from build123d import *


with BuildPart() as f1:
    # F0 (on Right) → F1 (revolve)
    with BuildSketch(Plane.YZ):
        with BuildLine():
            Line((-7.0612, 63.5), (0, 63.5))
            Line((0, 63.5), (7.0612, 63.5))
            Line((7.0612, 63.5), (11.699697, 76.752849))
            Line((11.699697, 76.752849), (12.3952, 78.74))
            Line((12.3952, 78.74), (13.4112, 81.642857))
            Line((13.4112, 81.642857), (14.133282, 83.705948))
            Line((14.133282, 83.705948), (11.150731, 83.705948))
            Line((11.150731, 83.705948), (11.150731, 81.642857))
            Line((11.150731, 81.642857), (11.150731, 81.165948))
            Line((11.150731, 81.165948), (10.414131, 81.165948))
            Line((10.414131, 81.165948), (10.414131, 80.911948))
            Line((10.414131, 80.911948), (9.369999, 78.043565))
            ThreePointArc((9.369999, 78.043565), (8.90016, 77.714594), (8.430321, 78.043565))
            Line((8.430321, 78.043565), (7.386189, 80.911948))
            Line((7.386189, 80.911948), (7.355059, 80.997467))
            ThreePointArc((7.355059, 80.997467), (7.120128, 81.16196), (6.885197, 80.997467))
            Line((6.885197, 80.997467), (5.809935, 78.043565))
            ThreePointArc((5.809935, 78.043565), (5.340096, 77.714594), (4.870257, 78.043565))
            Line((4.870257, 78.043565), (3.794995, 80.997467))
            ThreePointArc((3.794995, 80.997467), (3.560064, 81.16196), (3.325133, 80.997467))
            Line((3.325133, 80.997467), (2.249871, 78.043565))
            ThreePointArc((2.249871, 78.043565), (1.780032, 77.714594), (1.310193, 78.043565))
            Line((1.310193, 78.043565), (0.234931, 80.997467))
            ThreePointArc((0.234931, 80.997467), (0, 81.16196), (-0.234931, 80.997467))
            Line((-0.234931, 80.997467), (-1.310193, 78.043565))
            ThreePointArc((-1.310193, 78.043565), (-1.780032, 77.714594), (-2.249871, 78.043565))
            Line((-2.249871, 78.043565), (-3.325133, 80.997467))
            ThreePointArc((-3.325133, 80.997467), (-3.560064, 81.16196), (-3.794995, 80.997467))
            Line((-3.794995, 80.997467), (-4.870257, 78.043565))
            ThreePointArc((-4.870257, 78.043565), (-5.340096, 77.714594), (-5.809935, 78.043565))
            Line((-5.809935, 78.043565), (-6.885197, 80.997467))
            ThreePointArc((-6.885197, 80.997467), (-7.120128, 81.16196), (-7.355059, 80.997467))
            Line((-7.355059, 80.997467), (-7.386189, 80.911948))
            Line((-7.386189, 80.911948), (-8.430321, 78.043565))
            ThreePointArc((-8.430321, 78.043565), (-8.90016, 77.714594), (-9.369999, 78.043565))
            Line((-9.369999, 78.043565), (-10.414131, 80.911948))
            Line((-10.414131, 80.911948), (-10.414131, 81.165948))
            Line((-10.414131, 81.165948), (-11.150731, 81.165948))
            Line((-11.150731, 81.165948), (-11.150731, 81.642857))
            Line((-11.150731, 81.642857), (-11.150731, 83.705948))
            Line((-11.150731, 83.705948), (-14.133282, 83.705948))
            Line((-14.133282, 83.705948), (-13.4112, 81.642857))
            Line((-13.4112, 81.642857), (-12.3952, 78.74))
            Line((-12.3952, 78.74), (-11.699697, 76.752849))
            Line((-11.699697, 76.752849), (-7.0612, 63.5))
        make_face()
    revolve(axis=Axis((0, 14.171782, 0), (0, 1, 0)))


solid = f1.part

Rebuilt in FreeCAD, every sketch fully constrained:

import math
import FreeCAD as App
import Part
import Sketcher
from FreeCAD import Vector
Q = App.Units.Quantity

doc = App.newDocument("Part")
body = doc.addObject("PartDesign::Body", "Body")

# Sketch on YZ plane
sketch1 = body.newObject("Sketcher::SketchObject", "Sketch")
sketch1.AttachmentSupport = (doc.getObject("YZ_Plane"), [""])
sketch1.MapMode = "FlatFace"
sketch1.addGeometry(Part.LineSegment(Vector(-7.0612, 63.5, 0), Vector(7.0612, 63.5, 0)), False)
sketch1.addGeometry(Part.LineSegment(Vector(7.0612, 63.5, 0), Vector(11.699697, 76.752849, 0)), False)
sketch1.addGeometry(Part.LineSegment(Vector(11.699697, 76.752849, 0), Vector(12.3952, 78.74, 0)), False)
sketch1.addGeometry(Part.LineSegment(Vector(12.3952, 78.74, 0), Vector(13.4112, 81.642857, 0)), False)
sketch1.addGeometry(Part.LineSegment(Vector(13.4112, 81.642857, 0), Vector(14.133282, 83.705948, 0)), False)
sketch1.addGeometry(Part.LineSegment(Vector(14.133282, 83.705948, 0), Vector(11.150731, 83.705948, 0)), False)
sketch1.addGeometry(Part.LineSegment(Vector(11.150731, 83.705948, 0), Vector(11.150731, 81.165948, 0)), False)
sketch1.addGeometry(Part.LineSegment(Vector(11.150731, 81.165948, 0), Vector(10.414131, 81.165948, 0)), False)
sketch1.addGeometry(Part.LineSegment(Vector(10.414131, 81.165948, 0), Vector(10.414131, 80.911948, 0)), False)
sketch1.addGeometry(Part.LineSegment(Vector(10.414131, 80.911948, 0), Vector(9.369999, 78.043565, 0)), False)
sketch1.addGeometry(Part.ArcOfCircle(Part.Circle(Vector(8.90016, 78.214593, 0), Vector(0, 0, 1), 0.499999), math.radians(-159.99774), math.radians(-20.00226)), False)
sketch1.addGeometry(Part.LineSegment(Vector(8.430321, 78.043565, 0), Vector(7.386189, 80.911948, 0)), False)
sketch1.addGeometry(Part.LineSegment(Vector(7.386189, 80.911948, 0), Vector(7.355059, 80.997467, 0)), False)
sketch1.addGeometry(Part.ArcOfCircle(Part.Circle(Vector(7.120128, 80.911948, 0), Vector(0, 0, 1), 0.250012), math.radians(20.002441), math.radians(159.997559)), False)
sketch1.addGeometry(Part.LineSegment(Vector(6.885197, 80.997467, 0), Vector(5.809935, 78.043565, 0)), False)
sketch1.addGeometry(Part.ArcOfCircle(Part.Circle(Vector(5.340096, 78.214593, 0), Vector(0, 0, 1), 0.499999), math.radians(-159.99774), math.radians(-20.00226)), False)
sketch1.addGeometry(Part.LineSegment(Vector(4.870257, 78.043565, 0), Vector(3.794995, 80.997467, 0)), False)
sketch1.addGeometry(Part.ArcOfCircle(Part.Circle(Vector(3.560064, 80.911948, 0), Vector(0, 0, 1), 0.250012), math.radians(20.002441), math.radians(159.997559)), False)
sketch1.addGeometry(Part.LineSegment(Vector(3.325133, 80.997467, 0), Vector(2.249871, 78.043565, 0)), False)
sketch1.addGeometry(Part.ArcOfCircle(Part.Circle(Vector(1.780032, 78.214593, 0), Vector(0, 0, 1), 0.499999), math.radians(-159.99774), math.radians(-20.00226)), False)
sketch1.addGeometry(Part.LineSegment(Vector(1.310193, 78.043565, 0), Vector(0.234931, 80.997467, 0)), False)
sketch1.addGeometry(Part.ArcOfCircle(Part.Circle(Vector(0, 80.911948, 0), Vector(0, 0, 1), 0.250012), math.radians(20.002441), math.radians(159.997559)), False)
sketch1.addGeometry(Part.LineSegment(Vector(-0.234931, 80.997467, 0), Vector(-1.310193, 78.043565, 0)), False)
sketch1.addGeometry(Part.ArcOfCircle(Part.Circle(Vector(-1.780032, 78.214593, 0), Vector(0, 0, 1), 0.499999), math.radians(-159.99774), math.radians(-20.00226)), False)
sketch1.addGeometry(Part.LineSegment(Vector(-2.249871, 78.043565, 0), Vector(-3.325133, 80.997467, 0)), False)
sketch1.addGeometry(Part.ArcOfCircle(Part.Circle(Vector(-3.560064, 80.911948, 0), Vector(0, 0, 1), 0.250012), math.radians(20.002441), math.radians(159.997559)), False)
sketch1.addGeometry(Part.LineSegment(Vector(-3.794995, 80.997467, 0), Vector(-4.870257, 78.043565, 0)), False)
sketch1.addGeometry(Part.ArcOfCircle(Part.Circle(Vector(-5.340096, 78.214593, 0), Vector(0, 0, 1), 0.499999), math.radians(-159.99774), math.radians(-20.00226)), False)
sketch1.addGeometry(Part.LineSegment(Vector(-5.809935, 78.043565, 0), Vector(-6.885197, 80.997467, 0)), False)
sketch1.addGeometry(Part.ArcOfCircle(Part.Circle(Vector(-7.120128, 80.911948, 0), Vector(0, 0, 1), 0.250012), math.radians(20.002441), math.radians(159.997559)), False)
sketch1.addGeometry(Part.LineSegment(Vector(-7.355059, 80.997467, 0), Vector(-7.386189, 80.911948, 0)), False)
sketch1.addGeometry(Part.LineSegment(Vector(-7.386189, 80.911948, 0), Vector(-8.430321, 78.043565, 0)), False)
sketch1.addGeometry(Part.ArcOfCircle(Part.Circle(Vector(-8.90016, 78.214593, 0), Vector(0, 0, 1), 0.499999), math.radians(-159.99774), math.radians(-20.00226)), False)
sketch1.addGeometry(Part.LineSegment(Vector(-9.369999, 78.043565, 0), Vector(-10.414131, 80.911948, 0)), False)
sketch1.addGeometry(Part.LineSegment(Vector(-10.414131, 80.911948, 0), Vector(-10.414131, 81.165948, 0)), False)
sketch1.addGeometry(Part.LineSegment(Vector(-10.414131, 81.165948, 0), Vector(-11.150731, 81.165948, 0)), False)
sketch1.addGeometry(Part.LineSegment(Vector(-11.150731, 81.165948, 0), Vector(-11.150731, 83.705948, 0)), False)
sketch1.addGeometry(Part.LineSegment(Vector(-11.150731, 83.705948, 0), Vector(-14.133282, 83.705948, 0)), False)
sketch1.addGeometry(Part.LineSegment(Vector(-14.133282, 83.705948, 0), Vector(-13.4112, 81.642857, 0)), False)
sketch1.addGeometry(Part.LineSegment(Vector(-13.4112, 81.642857, 0), Vector(-12.3952, 78.74, 0)), False)
sketch1.addGeometry(Part.LineSegment(Vector(-12.3952, 78.74, 0), Vector(-11.699697, 76.752849, 0)), False)
sketch1.addGeometry(Part.LineSegment(Vector(-11.699697, 76.752849, 0), Vector(-7.0612, 63.5, 0)), False)
sketch1.addConstraint(Sketcher.Constraint("Coincident", 0, 2, 1, 1))
sketch1.addConstraint(Sketcher.Constraint("Coincident", 1, 2, 2, 1))
sketch1.addConstraint(Sketcher.Constraint("Coincident", 2, 2, 3, 1))
sketch1.addConstraint(Sketcher.Constraint("Coincident", 3, 2, 4, 1))
sketch1.addConstraint(Sketcher.Constraint("Coincident", 4, 2, 5, 1))
sketch1.addConstraint(Sketcher.Constraint("Coincident", 5, 2, 6, 1))
sketch1.addConstraint(Sketcher.Constraint("Coincident", 6, 2, 7, 1))
sketch1.addConstraint(Sketcher.Constraint("Coincident", 7, 2, 8, 1))
sketch1.addConstraint(Sketcher.Constraint("Coincident", 8, 2, 9, 1))
sketch1.addConstraint(Sketcher.Constraint("Tangent", 9, 2, 10, 2))
sketch1.addConstraint(Sketcher.Constraint("Tangent", 10, 1, 11, 1))
sketch1.addConstraint(Sketcher.Constraint("Coincident", 11, 2, 12, 1))
sketch1.addConstraint(Sketcher.Constraint("Coincident", 12, 2, 13, 1))
sketch1.addConstraint(Sketcher.Constraint("Coincident", 13, 2, 14, 1))
sketch1.addConstraint(Sketcher.Constraint("Tangent", 14, 2, 15, 2))
sketch1.addConstraint(Sketcher.Constraint("Tangent", 15, 1, 16, 1))
sketch1.addConstraint(Sketcher.Constraint("Coincident", 16, 2, 17, 1))
sketch1.addConstraint(Sketcher.Constraint("Coincident", 17, 2, 18, 1))
sketch1.addConstraint(Sketcher.Constraint("Tangent", 18, 2, 19, 2))
sketch1.addConstraint(Sketcher.Constraint("Tangent", 19, 1, 20, 1))
sketch1.addConstraint(Sketcher.Constraint("Coincident", 20, 2, 21, 1))
sketch1.addConstraint(Sketcher.Constraint("Coincident", 21, 2, 22, 1))
sketch1.addConstraint(Sketcher.Constraint("Tangent", 22, 2, 23, 2))
sketch1.addConstraint(Sketcher.Constraint("Tangent", 23, 1, 24, 1))
sketch1.addConstraint(Sketcher.Constraint("Coincident", 24, 2, 25, 1))
sketch1.addConstraint(Sketcher.Constraint("Coincident", 25, 2, 26, 1))
sketch1.addConstraint(Sketcher.Constraint("Tangent", 26, 2, 27, 2))
sketch1.addConstraint(Sketcher.Constraint("Tangent", 27, 1, 28, 1))
sketch1.addConstraint(Sketcher.Constraint("Coincident", 28, 2, 29, 1))
sketch1.addConstraint(Sketcher.Constraint("Coincident", 29, 2, 30, 1))
sketch1.addConstraint(Sketcher.Constraint("Coincident", 30, 2, 31, 1))
sketch1.addConstraint(Sketcher.Constraint("Tangent", 31, 2, 32, 2))
sketch1.addConstraint(Sketcher.Constraint("Tangent", 32, 1, 33, 1))
sketch1.addConstraint(Sketcher.Constraint("Coincident", 33, 2, 34, 1))
sketch1.addConstraint(Sketcher.Constraint("Coincident", 34, 2, 35, 1))
sketch1.addConstraint(Sketcher.Constraint("Coincident", 35, 2, 36, 1))
sketch1.addConstraint(Sketcher.Constraint("Coincident", 36, 2, 37, 1))
sketch1.addConstraint(Sketcher.Constraint("Coincident", 37, 2, 38, 1))
sketch1.addConstraint(Sketcher.Constraint("Coincident", 38, 2, 39, 1))
sketch1.addConstraint(Sketcher.Constraint("Coincident", 39, 2, 40, 1))
sketch1.addConstraint(Sketcher.Constraint("Coincident", 40, 2, 41, 1))
sketch1.addConstraint(Sketcher.Constraint("Coincident", 41, 2, 0, 1))
sketch1.addConstraint(Sketcher.Constraint("Horizontal", 0))
sketch1.addConstraint(Sketcher.Constraint("Horizontal", 5))
sketch1.addConstraint(Sketcher.Constraint("Vertical", 6))
sketch1.addConstraint(Sketcher.Constraint("Horizontal", 7))
sketch1.addConstraint(Sketcher.Constraint("Vertical", 8))
sketch1.addConstraint(Sketcher.Constraint("Vertical", 34))
sketch1.addConstraint(Sketcher.Constraint("Horizontal", 35))
sketch1.addConstraint(Sketcher.Constraint("Vertical", 36))
sketch1.addConstraint(Sketcher.Constraint("Horizontal", 37))
sketch1.addConstraint(Sketcher.Constraint("Equal", 10, 15))
sketch1.addConstraint(Sketcher.Constraint("Equal", 13, 17))
sketch1.addConstraint(Sketcher.Constraint("Equal", 15, 19))
sketch1.addConstraint(Sketcher.Constraint("Equal", 17, 21))
sketch1.addConstraint(Sketcher.Constraint("Equal", 19, 23))
sketch1.addConstraint(Sketcher.Constraint("Equal", 21, 25))
sketch1.addConstraint(Sketcher.Constraint("Equal", 23, 27))
sketch1.addConstraint(Sketcher.Constraint("Equal", 25, 29))
sketch1.addConstraint(Sketcher.Constraint("Equal", 27, 32))
sketch1.addConstraint(Sketcher.Constraint("Symmetric", 19, 3, 23, 3, -2))
sketch1.addConstraint(Sketcher.Constraint("Symmetric", 17, 3, 25, 3, -2))
sketch1.addConstraint(Sketcher.Constraint("Symmetric", 15, 3, 27, 3, -2))
sketch1.addConstraint(Sketcher.Constraint("Symmetric", 13, 3, 29, 3, -2))
sketch1.addConstraint(Sketcher.Constraint("Symmetric", 10, 3, 32, 3, -2))
sketch1.addConstraint(Sketcher.Constraint("Symmetric", 20, 2, 21, 2, -2))
sketch1.addConstraint(Sketcher.Constraint("Symmetric", 11, 2, 30, 2, -2))
sketch1.addConstraint(Sketcher.Constraint("Symmetric", 8, 2, 33, 2, -2))
sketch1.addConstraint(Sketcher.Constraint("Symmetric", 6, 2, 35, 2, -2))
sketch1.addConstraint(Sketcher.Constraint("Symmetric", 4, 2, 37, 2, -2))
sketch1.addConstraint(Sketcher.Constraint("Symmetric", 3, 2, 38, 2, -2))
sketch1.addConstraint(Sketcher.Constraint("Symmetric", 2, 2, 39, 2, -2))
sketch1.addConstraint(Sketcher.Constraint("Symmetric", 1, 2, 40, 2, -2))
sketch1.addConstraint(Sketcher.Constraint("Parallel", 1, 2))
sketch1.addConstraint(Sketcher.Constraint("Parallel", 2, 3))
sketch1.addConstraint(Sketcher.Constraint("Parallel", 3, 4))
sketch1.addConstraint(Sketcher.Constraint("Parallel", 11, 12))
sketch1.addConstraint(Sketcher.Constraint("Parallel", 9, 14))
sketch1.addConstraint(Sketcher.Constraint("Parallel", 12, 16))
sketch1.addConstraint(Sketcher.Constraint("Parallel", 14, 18))
sketch1.addConstraint(Sketcher.Constraint("Parallel", 16, 20))
sketch1.addConstraint(Sketcher.Constraint("Parallel", 18, 22))
sketch1.addConstraint(Sketcher.Constraint("Parallel", 40, 41))
sketch1.addConstraint(Sketcher.Constraint("Horizontal", 10, 3, 15, 3))
sketch1.addConstraint(Sketcher.Constraint("Horizontal", 13, 3, 17, 3))
sketch1.addConstraint(Sketcher.Constraint("Horizontal", 15, 3, 19, 3))
sketch1.addConstraint(Sketcher.Constraint("Horizontal", 17, 3, 21, 3))
sketch1.addConstraint(Sketcher.Constraint("Horizontal", 29, 3, 8, 2))
sketch1.addConstraint(Sketcher.Constraint("Horizontal", 8, 2, 11, 2))
sketch1.addConstraint(Sketcher.Constraint("Horizontal", 12, 2, 13, 2))
sketch1.addConstraint(Sketcher.Constraint("Horizontal", 13, 2, 16, 2))
sketch1.addConstraint(Sketcher.Constraint("Horizontal", 16, 2, 17, 2))
sketch1.addConstraint(Sketcher.Constraint("Horizontal", 17, 2, 20, 2))
sketch1.addConstraint(Sketcher.Constraint("Horizontal", 21, 2, 24, 2))
sketch1.addConstraint(Sketcher.Constraint("Horizontal", 24, 2, 25, 2))
sketch1.addConstraint(Sketcher.Constraint("Horizontal", 25, 2, 28, 2))
sketch1.addConstraint(Sketcher.Constraint("Horizontal", 28, 2, 29, 2))
sketch1.addConstraint(Sketcher.Constraint("DistanceY", 6, 2, 6, 1, Q("0.1 in")))
sketch1.addConstraint(Sketcher.Constraint("DistanceY", 8, 2, 8, 1, Q("0.01 in")))
sketch1.addConstraint(Sketcher.Constraint("DistanceY", -1, 1, 0, 2, Q("2.5 in")))
sketch1.addConstraint(Sketcher.Constraint("DistanceY", -1, 1, 2, 2, Q("3.1 in")))
sketch1.addConstraint(Sketcher.Constraint("DistanceX", 0, 1, 0, 2, Q("0.556 in")))
sketch1.addConstraint(Sketcher.Constraint("DistanceX", 7, 2, 7, 1, Q("0.029 in")))
sketch1.addConstraint(Sketcher.Constraint("Radius", 10, 0.499999))
sketch1.addConstraint(Sketcher.Constraint("DistanceX", 2, 2, 3, 2, Q("0.04 in")))
sketch1.addConstraint(Sketcher.Constraint("DistanceX", -1, 1, 2, 2, Q("0.488 in")))
sketch1.addConstraint(Sketcher.Constraint("DistanceX", -1, 1, 10, 3, Q("0.3504 in")))
sketch1.addConstraint(Sketcher.Constraint("Radius", 13, 0.250012))
sketch1.addConstraint(Sketcher.Constraint("DistanceX", 5, 2, 5, 1, 2.982551))
sketch1.addConstraint(Sketcher.Constraint("DistanceX", -1, 1, 9, 2, 9.369999))
sketch1.addConstraint(Sketcher.Constraint("DistanceY", 1, 2, 13, 3, 4.159099))
sketch1.addConstraint(Sketcher.Constraint("DistanceY", 10, 1, 12, 2, 2.953902))
revolution = body.newObject("PartDesign::Revolution", "Revolution")
revolution.Profile = sketch1
revolution.ReferenceAxis = (sketch1, ["H_Axis"])
revolution.Angle = 360

doc.recompute()
